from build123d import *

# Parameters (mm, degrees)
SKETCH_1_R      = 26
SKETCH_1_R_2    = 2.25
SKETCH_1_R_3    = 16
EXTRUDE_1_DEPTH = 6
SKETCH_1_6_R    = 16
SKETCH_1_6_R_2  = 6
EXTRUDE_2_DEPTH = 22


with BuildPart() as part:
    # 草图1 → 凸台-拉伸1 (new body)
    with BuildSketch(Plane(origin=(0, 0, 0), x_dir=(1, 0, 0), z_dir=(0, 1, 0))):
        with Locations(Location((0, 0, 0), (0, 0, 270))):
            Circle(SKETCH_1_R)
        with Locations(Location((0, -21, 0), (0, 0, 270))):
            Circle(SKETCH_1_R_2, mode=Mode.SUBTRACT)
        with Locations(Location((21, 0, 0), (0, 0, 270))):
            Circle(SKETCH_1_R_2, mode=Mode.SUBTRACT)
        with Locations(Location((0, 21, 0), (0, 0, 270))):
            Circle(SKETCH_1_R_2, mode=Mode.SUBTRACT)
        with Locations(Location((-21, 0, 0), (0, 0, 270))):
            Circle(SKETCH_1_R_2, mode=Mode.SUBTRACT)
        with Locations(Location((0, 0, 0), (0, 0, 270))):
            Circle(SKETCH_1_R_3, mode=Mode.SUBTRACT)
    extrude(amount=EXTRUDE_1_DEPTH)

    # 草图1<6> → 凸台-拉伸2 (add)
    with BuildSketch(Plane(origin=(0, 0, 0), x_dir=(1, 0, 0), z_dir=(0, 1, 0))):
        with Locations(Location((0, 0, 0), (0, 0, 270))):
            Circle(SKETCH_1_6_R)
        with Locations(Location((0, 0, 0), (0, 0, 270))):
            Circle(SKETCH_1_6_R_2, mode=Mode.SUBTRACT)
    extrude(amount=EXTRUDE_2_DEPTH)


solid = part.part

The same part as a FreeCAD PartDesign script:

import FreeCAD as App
import Part
import Sketcher
from FreeCAD import Vector
Q = App.Units.Quantity

doc = App.newDocument("Part")
body = doc.addObject("PartDesign::Body", "Body")

sketch1 = body.newObject("Sketcher::SketchObject", "Sketch")
sketch1.AttachmentSupport = (doc.getObject("XZ_Plane"), [""])
sketch1.MapMode = "FlatFace"
sketch1.addGeometry([
    Part.Circle(Vector(0, 0, 0), Vector(0, 0, 1), 26),
    Part.Circle(Vector(0, -21, 0), Vector(0, 0, 1), 2.25),
    Part.Circle(Vector(-21, 0, 0), Vector(0, 0, 1), 2.25),
    Part.Circle(Vector(21, 0, 0), Vector(0, 0, 1), 2.25),
    Part.Circle(Vector(0, 0, 0), Vector(0, 0, 1), 16),
    Part.Circle(Vector(0, 21, 0), Vector(0, 0, 1), 2.25),
], False)
sketch1.addConstraint([
    Sketcher.Constraint("Coincident", 0, 3, -1, 1),
    Sketcher.Constraint("Coincident", 4, 3, -1, 1),
    Sketcher.Constraint("Equal", 1, 2),
    Sketcher.Constraint("Equal", 2, 3),
    Sketcher.Constraint("Equal", 3, 5),
    Sketcher.Constraint("Symmetric", 2, 3, 3, 3, -1, 1),
    Sketcher.Constraint("Symmetric", 1, 3, 5, 3, -1, 1),
    Sketcher.Constraint("PointOnObject", 1, 3, -2),
    Sketcher.Constraint("PointOnObject", 2, 3, -1),
    Sketcher.Constraint("Diameter", 0, Q("52 mm")),
    Sketcher.Constraint("Diameter", 4, Q("32 mm")),
    Sketcher.Constraint("Diameter", 1, Q("4.5 mm")),
    Sketcher.Constraint("DistanceY", 1, 3, -1, 1, Q("21 mm")),
    Sketcher.Constraint("DistanceX", 2, 3, -1, 1, Q("21 mm")),
])
pad1 = body.newObject("PartDesign::Pad", "Pad")
pad1.Profile = sketch1
pad1.Length = 6
pad1.Reversed = True

sketch2 = body.newObject("Sketcher::SketchObject", "Sketch001")
sketch2.AttachmentSupport = (doc.getObject("XZ_Plane"), [""])
sketch2.MapMode = "FlatFace"
sketch2.addGeometry([
    Part.Circle(Vector(0, 0, 0), Vector(0, 0, 1), 16),
    Part.Circle(Vector(0, 0, 0), Vector(0, 0, 1), 6),
], False)
sketch2.addConstraint([
    Sketcher.Constraint("Coincident", 0, 3, -1, 1),
    Sketcher.Constraint("Coincident", 1, 3, -1, 1),
    Sketcher.Constraint("Diameter", 0, Q("32 mm")),
    Sketcher.Constraint("Diameter", 1, Q("12 mm")),
])
pad2 = body.newObject("PartDesign::Pad", "Pad001")
pad2.Profile = sketch2
pad2.Length = 22
pad2.Reversed = True

doc.recompute()
